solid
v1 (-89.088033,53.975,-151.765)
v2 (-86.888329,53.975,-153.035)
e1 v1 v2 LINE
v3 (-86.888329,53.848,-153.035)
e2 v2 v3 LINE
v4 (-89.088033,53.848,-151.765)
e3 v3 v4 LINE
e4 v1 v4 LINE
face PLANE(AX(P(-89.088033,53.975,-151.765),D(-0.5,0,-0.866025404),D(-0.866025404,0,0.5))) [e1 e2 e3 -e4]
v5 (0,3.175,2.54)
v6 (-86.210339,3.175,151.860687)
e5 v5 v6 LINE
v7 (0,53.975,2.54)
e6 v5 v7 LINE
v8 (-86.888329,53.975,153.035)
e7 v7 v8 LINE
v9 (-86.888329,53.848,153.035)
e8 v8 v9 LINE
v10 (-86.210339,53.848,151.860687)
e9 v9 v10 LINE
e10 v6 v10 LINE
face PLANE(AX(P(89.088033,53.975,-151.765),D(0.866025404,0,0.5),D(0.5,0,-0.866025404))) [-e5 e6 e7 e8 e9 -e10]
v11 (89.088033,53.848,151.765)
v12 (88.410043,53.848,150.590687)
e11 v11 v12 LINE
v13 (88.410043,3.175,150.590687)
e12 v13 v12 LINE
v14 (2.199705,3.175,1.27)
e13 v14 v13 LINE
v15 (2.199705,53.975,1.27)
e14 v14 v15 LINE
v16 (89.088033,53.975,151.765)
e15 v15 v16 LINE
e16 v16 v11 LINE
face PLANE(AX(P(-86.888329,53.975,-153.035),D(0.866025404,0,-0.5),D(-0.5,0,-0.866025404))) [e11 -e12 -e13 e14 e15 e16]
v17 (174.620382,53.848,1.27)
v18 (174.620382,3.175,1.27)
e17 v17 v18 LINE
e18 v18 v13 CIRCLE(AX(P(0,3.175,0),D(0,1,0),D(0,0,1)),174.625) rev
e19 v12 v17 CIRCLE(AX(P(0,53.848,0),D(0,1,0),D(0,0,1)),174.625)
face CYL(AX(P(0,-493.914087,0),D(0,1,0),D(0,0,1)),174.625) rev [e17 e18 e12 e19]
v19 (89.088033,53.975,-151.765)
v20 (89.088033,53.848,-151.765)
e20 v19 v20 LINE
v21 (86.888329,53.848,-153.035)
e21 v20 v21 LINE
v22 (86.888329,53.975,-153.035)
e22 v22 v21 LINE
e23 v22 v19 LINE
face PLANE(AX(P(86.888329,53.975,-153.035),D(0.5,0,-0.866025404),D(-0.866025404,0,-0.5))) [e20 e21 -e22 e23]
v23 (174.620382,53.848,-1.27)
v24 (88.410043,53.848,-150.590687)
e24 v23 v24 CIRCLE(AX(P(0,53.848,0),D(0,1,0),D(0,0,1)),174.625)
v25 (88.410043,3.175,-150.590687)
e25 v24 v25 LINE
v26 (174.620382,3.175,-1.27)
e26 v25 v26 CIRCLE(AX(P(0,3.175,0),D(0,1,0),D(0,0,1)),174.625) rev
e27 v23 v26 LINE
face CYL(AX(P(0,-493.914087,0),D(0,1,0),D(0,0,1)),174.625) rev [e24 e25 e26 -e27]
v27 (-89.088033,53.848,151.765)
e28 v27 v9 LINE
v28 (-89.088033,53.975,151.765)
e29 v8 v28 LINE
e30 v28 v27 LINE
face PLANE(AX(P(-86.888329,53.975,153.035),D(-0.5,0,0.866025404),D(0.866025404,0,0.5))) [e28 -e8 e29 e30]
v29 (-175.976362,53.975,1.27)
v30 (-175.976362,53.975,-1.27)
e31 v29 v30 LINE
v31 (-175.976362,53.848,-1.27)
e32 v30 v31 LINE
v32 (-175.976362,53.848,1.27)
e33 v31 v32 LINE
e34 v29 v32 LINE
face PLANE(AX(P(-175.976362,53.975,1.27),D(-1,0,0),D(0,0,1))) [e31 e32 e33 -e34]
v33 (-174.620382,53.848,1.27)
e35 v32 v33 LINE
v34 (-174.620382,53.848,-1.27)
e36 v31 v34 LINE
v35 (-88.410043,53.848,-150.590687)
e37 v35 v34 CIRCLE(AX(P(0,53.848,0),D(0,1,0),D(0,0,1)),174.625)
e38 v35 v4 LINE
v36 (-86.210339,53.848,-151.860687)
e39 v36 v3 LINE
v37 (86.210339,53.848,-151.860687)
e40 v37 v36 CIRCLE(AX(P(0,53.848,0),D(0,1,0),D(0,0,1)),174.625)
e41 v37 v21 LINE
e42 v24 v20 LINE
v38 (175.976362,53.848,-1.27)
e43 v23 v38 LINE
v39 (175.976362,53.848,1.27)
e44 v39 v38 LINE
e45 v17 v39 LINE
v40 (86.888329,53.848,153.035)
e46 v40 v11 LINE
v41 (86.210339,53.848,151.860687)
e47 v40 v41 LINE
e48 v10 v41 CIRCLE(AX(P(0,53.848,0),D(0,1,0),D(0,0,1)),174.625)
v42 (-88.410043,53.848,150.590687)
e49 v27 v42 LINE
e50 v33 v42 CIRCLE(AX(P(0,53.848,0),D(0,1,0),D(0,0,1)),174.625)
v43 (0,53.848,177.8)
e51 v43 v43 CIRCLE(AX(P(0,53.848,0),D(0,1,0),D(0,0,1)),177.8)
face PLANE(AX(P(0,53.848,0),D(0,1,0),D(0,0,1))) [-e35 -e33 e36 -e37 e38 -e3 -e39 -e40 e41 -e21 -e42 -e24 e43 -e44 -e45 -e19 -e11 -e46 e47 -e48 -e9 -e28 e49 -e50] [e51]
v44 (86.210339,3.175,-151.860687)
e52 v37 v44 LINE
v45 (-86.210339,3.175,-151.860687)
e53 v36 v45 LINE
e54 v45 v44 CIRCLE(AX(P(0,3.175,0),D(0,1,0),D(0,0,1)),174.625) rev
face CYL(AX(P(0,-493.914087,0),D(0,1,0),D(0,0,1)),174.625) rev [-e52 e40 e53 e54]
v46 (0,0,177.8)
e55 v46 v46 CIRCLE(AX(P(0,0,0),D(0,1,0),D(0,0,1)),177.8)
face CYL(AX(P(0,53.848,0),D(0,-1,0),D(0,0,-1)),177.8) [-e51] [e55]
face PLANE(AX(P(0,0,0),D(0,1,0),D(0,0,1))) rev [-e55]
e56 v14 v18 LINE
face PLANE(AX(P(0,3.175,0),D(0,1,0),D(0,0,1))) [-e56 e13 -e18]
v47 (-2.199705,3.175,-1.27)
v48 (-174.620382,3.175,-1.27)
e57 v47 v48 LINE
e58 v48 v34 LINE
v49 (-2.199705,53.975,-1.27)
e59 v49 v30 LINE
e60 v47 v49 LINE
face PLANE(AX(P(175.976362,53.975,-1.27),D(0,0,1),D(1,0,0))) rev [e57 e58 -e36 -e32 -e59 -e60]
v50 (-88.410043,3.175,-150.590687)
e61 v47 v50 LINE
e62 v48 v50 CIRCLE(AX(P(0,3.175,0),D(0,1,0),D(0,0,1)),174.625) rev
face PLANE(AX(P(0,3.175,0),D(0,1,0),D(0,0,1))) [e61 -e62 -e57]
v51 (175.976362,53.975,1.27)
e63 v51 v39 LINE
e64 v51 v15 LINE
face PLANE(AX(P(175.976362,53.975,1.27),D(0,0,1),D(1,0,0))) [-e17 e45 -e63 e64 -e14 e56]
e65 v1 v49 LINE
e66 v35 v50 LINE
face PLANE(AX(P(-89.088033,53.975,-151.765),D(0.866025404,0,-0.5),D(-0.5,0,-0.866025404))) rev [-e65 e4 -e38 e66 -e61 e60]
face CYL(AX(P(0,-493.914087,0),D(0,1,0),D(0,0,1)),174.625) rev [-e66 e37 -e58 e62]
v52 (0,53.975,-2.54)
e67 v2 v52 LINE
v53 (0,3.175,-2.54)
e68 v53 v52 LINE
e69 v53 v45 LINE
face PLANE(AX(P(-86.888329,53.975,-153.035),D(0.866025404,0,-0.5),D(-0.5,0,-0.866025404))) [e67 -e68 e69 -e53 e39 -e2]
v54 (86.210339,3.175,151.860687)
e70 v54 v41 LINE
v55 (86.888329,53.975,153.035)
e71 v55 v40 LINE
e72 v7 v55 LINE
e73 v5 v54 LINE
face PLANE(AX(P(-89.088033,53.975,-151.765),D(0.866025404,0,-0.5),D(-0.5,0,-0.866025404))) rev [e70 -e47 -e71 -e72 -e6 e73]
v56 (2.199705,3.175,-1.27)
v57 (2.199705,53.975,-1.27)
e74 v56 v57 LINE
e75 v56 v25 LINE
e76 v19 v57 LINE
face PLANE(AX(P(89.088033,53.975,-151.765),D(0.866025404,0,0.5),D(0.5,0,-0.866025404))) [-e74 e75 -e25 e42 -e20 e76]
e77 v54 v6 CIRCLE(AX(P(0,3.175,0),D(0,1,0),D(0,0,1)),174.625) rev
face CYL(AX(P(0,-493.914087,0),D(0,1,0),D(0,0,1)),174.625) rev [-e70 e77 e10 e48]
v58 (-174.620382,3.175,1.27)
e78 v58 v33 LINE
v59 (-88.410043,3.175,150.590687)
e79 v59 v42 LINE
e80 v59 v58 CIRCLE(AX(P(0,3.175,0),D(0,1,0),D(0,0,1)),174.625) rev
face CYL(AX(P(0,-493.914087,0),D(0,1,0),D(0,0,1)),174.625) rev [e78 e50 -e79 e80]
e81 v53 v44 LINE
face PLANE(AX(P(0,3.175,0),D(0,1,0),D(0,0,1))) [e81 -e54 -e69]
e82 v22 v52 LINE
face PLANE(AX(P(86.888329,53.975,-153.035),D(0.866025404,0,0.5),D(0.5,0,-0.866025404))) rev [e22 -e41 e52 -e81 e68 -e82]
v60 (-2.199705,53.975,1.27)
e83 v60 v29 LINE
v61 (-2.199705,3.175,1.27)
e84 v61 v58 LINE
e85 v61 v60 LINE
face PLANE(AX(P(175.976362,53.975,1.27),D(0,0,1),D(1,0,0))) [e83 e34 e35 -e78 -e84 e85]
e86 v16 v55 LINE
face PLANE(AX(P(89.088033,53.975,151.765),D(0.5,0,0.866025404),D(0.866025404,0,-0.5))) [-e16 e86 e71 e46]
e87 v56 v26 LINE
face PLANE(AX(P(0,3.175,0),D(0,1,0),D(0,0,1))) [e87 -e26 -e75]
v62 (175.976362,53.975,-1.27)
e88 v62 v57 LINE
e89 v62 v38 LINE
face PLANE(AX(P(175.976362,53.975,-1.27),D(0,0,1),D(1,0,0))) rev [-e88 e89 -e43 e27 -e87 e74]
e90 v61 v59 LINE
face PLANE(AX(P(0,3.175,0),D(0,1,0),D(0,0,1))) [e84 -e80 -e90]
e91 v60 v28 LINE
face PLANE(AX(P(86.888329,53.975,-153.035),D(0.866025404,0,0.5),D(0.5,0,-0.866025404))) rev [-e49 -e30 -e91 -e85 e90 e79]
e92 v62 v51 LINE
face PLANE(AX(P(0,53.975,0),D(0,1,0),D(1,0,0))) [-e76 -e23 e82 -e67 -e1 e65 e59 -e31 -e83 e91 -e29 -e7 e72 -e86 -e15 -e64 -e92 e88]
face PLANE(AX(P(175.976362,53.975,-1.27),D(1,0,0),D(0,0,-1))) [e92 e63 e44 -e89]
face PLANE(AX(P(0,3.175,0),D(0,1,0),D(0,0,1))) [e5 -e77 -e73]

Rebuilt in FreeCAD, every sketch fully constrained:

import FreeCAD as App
import Part
import Sketcher
Q = App.Units.Quantity

doc = App.newDocument("Part")
params = doc.addObject("Spreadsheet::Sheet", "Params")
for row, (alias, value) in enumerate([
    ("sketch1_diameter", "14 in"),
    ("pad1_length", "2.12 in"),
    ("sketch2_diameter", "13.75 in"),
    ("pocket1_length", "1.995 in"),
    ("sketch3_height", "0.1 in"),
    ("sketch3_length", "0.1 in"),
    ("pad2_length", "2 in"),
], start=1):
    params.set(f"A{row}", alias)
    params.set(f"B{row}", "=" + value)
    params.setAlias(f"B{row}", alias)

body = doc.addObject("PartDesign::Body", "Body")

sketch1 = body.newObject("Sketcher::SketchObject", "Sketch")
sketch1.AttachmentSupport = (doc.getObject("XZ_Plane"), [""])
sketch1.MapMode = "FlatFace"
sketch1.addGeometry(Part.Circle(App.Vector(0, 0, 0), App.Vector(0, 0, 1), 178), False)
sketch1.addConstraint([
    Sketcher.Constraint("Coincident", 0, 3, -1, 1),
    Sketcher.Constraint("Diameter", 0, Q("14 in")),
])
sketch1.setExpression("Constraints[1]", "Params.sketch1_diameter")
pad1 = body.newObject("PartDesign::Pad", "Pad")
pad1.Profile = sketch1
pad1.setExpression("Length", "Params.pad1_length")
pad1.Reversed = True

sketch2 = body.newObject("Sketcher::SketchObject", "Sketch001")
sketch2.AttachmentSupport = (doc.getObject("XZ_Plane"), [""])
sketch2.MapMode = "FlatFace"
sketch2.AttachmentOffset = App.Placement(App.Vector(0, 0, -2.12 * 25.4), App.Rotation())
sketch2.addGeometry(Part.Circle(App.Vector(0, 0, 0), App.Vector(0, 0, 1), 175), False)
sketch2.addConstraint([
    Sketcher.Constraint("Coincident", 0, 3, -1, 1),
    Sketcher.Constraint("Diameter", 0, Q("13.75 in")),
])
sketch2.setExpression("Constraints[1]", "Params.sketch2_diameter")
pocket1 = body.newObject("PartDesign::Pocket", "Pocket")
pocket1.Profile = sketch2
pocket1.setExpression("Length", "Params.pocket1_length")
pocket1.Reversed = True

sketch3 = body.newObject("Sketcher::SketchObject", "Sketch002")
sketch3.AttachmentSupport = (doc.getObject("XZ_Plane"), [""])
sketch3.MapMode = "FlatFace"
sketch3.AttachmentOffset = App.Placement(App.Vector(0, 0, -0.125 * 25.4), App.Rotation())
sketch3.addGeometry([
    Part.LineSegment(App.Vector(2.2, -1.3, 0), App.Vector(89.1, -151.8, 0)),
    Part.LineSegment(App.Vector(89.1, -151.8, 0), App.Vector(86.9, -153, 0)),
    Part.LineSegment(App.Vector(86.9, -153, 0), App.Vector(0, -2.5, 0)),
    Part.LineSegment(App.Vector(0, -2.5, 0), App.Vector(-86.9, -153, 0)),
    Part.LineSegment(App.Vector(-86.9, -153, 0), App.Vector(-89.1, -151.8, 0)),
    Part.LineSegment(App.Vector(-89.1, -151.8, 0), App.Vector(-2.2, -1.3, 0)),
    Part.LineSegment(App.Vector(-2.2, -1.3, 0), App.Vector(-176, -1.3, 0)),
    Part.LineSegment(App.Vector(-176, -1.3, 0), App.Vector(-176, 1.3, 0)),
    Part.LineSegment(App.Vector(-176, 1.3, 0), App.Vector(-2.2, 1.3, 0)),
    Part.LineSegment(App.Vector(-2.2, 1.3, 0), App.Vector(-89.1, 151.8, 0)),
    Part.LineSegment(App.Vector(-89.1, 151.8, 0), App.Vector(-86.9, 153, 0)),
    Part.LineSegment(App.Vector(-86.9, 153, 0), App.Vector(0, 2.5, 0)),
    Part.LineSegment(App.Vector(0, 2.5, 0), App.Vector(86.9, 153, 0)),
    Part.LineSegment(App.Vector(86.9, 153, 0), App.Vector(89.1, 151.8, 0)),
    Part.LineSegment(App.Vector(89.1, 151.8, 0), App.Vector(2.2, 1.3, 0)),
    Part.LineSegment(App.Vector(2.2, 1.3, 0), App.Vector(176, 1.3, 0)),
    Part.LineSegment(App.Vector(176, 1.3, 0), App.Vector(176, -1.3, 0)),
    Part.LineSegment(App.Vector(176, -1.3, 0), App.Vector(2.2, -1.3, 0)),
], False)
sketch3.addConstraint([
    Sketcher.Constraint("Coincident", 0, 2, 1, 1),
    Sketcher.Constraint("Coincident", 1, 2, 2, 1),
    Sketcher.Constraint("Coincident", 2, 2, 3, 1),
    Sketcher.Constraint("Coincident", 3, 2, 4, 1),
    Sketcher.Constraint("Coincident", 4, 2, 5, 1),
    Sketcher.Constraint("Coincident", 5, 2, 6, 1),
    Sketcher.Constraint("Coincident", 6, 2, 7, 1),
    Sketcher.Constraint("Coincident", 7, 2, 8, 1),
    Sketcher.Constraint("Coincident", 8, 2, 9, 1),
    Sketcher.Constraint("Coincident", 9, 2, 10, 1),
    Sketcher.Constraint("Coincident", 10, 2, 11, 1),
    Sketcher.Constraint("Coincident", 11, 2, 12, 1),
    Sketcher.Constraint("Coincident", 12, 2, 13, 1),
    Sketcher.Constraint("Coincident", 13, 2, 14, 1),
    Sketcher.Constraint("Coincident", 14, 2, 15, 1),
    Sketcher.Constraint("Coincident", 15, 2, 16, 1),
    Sketcher.Constraint("Coincident", 16, 2, 17, 1),
    Sketcher.Constraint("Coincident", 17, 2, 0, 1),
    Sketcher.Constraint("Horizontal", 6),
    Sketcher.Constraint("Vertical", 7),
    Sketcher.Constraint("Horizontal", 8),
    Sketcher.Constraint("Horizontal", 15),
    Sketcher.Constraint("Vertical", 16),
    Sketcher.Constraint("Horizontal", 17),
    Sketcher.Constraint("Symmetric", 0, 2, 9, 2, -1, 1),
    Sketcher.Constraint("Symmetric", 1, 2, 10, 2, -1, 1),
    Sketcher.Constraint("Symmetric", 2, 2, 11, 2, -1, 1),
    Sketcher.Constraint("Symmetric", 3, 2, 12, 2, -1, 1),
    Sketcher.Constraint("Symmetric", 4, 2, 13, 2, -1, 1),
    Sketcher.Constraint("Symmetric", 5, 2, 14, 2, -1, 1),
    Sketcher.Constraint("Symmetric", 7, 2, 16, 2, -1, 1),
    Sketcher.Constraint("Symmetric", 1, 2, 3, 2, -2),
    Sketcher.Constraint("Symmetric", 0, 2, 4, 2, -2),
    Sketcher.Constraint("Symmetric", 8, 2, 14, 2, -2),
    Sketcher.Constraint("PointOnObject", 2, 2, -2),
    Sketcher.Constraint("Perpendicular", 0, 1),
    Sketcher.Constraint("Perpendicular", 1, 2),
    Sketcher.Constraint("Perpendicular", 4, 5),
    Sketcher.Constraint("Equal", 0, 2),
    Sketcher.Constraint("DistanceY", 7, 1, 7, 2, Q("0.1 in")),
    Sketcher.Constraint("Angle", 0, Q("-60 deg")),
    Sketcher.Constraint("Distance", 1, Q("0.1 in")),
    Sketcher.Constraint("DistanceY", 0, 2, -1, 1, Q("5.975 in")),
    Sketcher.Constraint("DistanceX", 6, 2, 6, 1, 173.776658),
])
sketch3.setExpression("Constraints[39]", "Params.sketch3_height")
sketch3.setExpression("Constraints[41]", "Params.sketch3_length")
pad2 = body.newObject("PartDesign::Pad", "Pad001")
pad2.Profile = sketch3
pad2.setExpression("Length", "Params.pad2_length")
pad2.Reversed = True

doc.recompute()
